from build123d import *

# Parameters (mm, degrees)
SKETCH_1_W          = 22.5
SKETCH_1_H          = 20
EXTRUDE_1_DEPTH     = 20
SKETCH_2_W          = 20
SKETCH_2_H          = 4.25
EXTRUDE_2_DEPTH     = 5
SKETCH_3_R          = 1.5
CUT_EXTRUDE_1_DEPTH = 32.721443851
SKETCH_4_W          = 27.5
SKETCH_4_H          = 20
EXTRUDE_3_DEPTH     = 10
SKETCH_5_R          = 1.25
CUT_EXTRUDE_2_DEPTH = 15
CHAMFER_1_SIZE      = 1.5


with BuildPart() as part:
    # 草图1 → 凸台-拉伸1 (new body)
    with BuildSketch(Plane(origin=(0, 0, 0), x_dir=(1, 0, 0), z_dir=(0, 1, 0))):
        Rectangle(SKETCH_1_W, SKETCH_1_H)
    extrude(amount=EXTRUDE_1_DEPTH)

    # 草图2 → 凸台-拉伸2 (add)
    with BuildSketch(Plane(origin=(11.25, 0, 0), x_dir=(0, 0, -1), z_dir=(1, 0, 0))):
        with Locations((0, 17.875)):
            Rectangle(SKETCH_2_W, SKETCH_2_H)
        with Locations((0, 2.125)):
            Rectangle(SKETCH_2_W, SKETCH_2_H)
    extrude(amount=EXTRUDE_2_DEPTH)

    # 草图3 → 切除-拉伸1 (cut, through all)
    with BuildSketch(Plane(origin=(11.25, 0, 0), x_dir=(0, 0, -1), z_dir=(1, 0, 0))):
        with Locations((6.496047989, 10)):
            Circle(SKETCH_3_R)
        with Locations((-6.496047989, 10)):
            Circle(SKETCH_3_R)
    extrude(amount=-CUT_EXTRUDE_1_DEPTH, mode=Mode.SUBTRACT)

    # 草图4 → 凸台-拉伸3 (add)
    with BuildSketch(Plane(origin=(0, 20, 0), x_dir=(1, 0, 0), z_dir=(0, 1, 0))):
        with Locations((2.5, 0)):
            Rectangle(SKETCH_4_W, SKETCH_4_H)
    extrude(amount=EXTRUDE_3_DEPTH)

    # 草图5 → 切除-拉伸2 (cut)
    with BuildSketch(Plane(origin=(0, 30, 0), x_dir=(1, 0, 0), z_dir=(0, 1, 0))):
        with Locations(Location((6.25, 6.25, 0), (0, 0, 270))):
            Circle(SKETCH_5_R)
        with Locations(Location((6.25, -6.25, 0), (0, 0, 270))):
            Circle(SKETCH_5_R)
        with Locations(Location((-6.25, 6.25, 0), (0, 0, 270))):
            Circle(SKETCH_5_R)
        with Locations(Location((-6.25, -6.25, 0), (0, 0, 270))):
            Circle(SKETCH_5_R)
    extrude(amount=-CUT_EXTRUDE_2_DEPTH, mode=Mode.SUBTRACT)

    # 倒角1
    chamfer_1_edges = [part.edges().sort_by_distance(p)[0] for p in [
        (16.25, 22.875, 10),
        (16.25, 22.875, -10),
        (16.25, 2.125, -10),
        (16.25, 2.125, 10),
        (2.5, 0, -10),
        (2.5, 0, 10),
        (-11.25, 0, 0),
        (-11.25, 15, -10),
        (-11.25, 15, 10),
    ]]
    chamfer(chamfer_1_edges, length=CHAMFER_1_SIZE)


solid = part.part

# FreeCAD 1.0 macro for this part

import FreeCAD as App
import Part
import Sketcher

V = App.Vector
Q = App.Units.Quantity


def edges_at(feature, points):
    """Names of the edges that pass closest to the given points."""
    edges = feature.Shape.Edges
    near = lambda p: min(range(len(edges)), key=lambda i: edges[i].distToShape(Part.Vertex(*p))[0])
    return sorted({f"Edge{near(p) + 1}" for p in points})

doc = App.newDocument("Part")
body = doc.addObject("PartDesign::Body", "Body")

# Sketch on XZ plane
sketch1 = doc.addObject("Sketcher::SketchObject", "Sketch")
body.addObject(sketch1)
sketch1.AttachmentSupport = (doc.XZ_Plane, [""])
sketch1.MapMode = "FlatFace"
sketch1.addGeometry([
    Part.LineSegment(V(-11.25, -10, 0), V(-11.25, 10, 0)),
    Part.LineSegment(V(-11.25, 10, 0), V(11.25, 10, 0)),
    Part.LineSegment(V(11.25, 10, 0), V(11.25, -10, 0)),
    Part.LineSegment(V(11.25, -10, 0), V(-11.25, -10, 0)),
], False)
sketch1.addConstraint([
    Sketcher.Constraint("Coincident", 0, 2, 1, 1),
    Sketcher.Constraint("Coincident", 1, 2, 2, 1),
    Sketcher.Constraint("Coincident", 2, 2, 3, 1),
    Sketcher.Constraint("Coincident", 3, 2, 0, 1),
    Sketcher.Constraint("Vertical", 0),
    Sketcher.Constraint("Horizontal", 1),
    Sketcher.Constraint("Vertical", 2),
    Sketcher.Constraint("Horizontal", 3),
    Sketcher.Constraint("Symmetric", 0, 2, 2, 2, -1, 1),
    Sketcher.Constraint("DistanceY", 0, 1, 0, 2, Q("20 mm")),
    Sketcher.Constraint("DistanceX", 1, 1, 1, 2, Q("22.5 mm")),
])
pad1 = doc.addObject("PartDesign::Pad", "Pad")
body.addObject(pad1)
pad1.Profile = sketch1
pad1.Length = 20
pad1.Reversed = True

# Sketch on YZ plane
sketch2 = doc.addObject("Sketcher::SketchObject", "Sketch001")
body.addObject(sketch2)
sketch2.AttachmentSupport = (doc.YZ_Plane, [""])
sketch2.MapMode = "FlatFace"
sketch2.AttachmentOffset = App.Placement(V(0, 0, 11.25), App.Rotation())
sketch2.addGeometry([
    Part.LineSegment(V(20, 10, 0), V(15.75, 10, 0)),  # 0
    Part.LineSegment(V(15.75, 10, 0), V(15.75, -10, 0)),  # 1
    Part.LineSegment(V(15.75, -10, 0), V(20, -10, 0)),  # 2
    Part.LineSegment(V(20, -10, 0), V(20, 10, 0)),  # 3
    Part.LineSegment(V(4.25, 10, 0), V(0, 10, 0)),  # 4
    Part.LineSegment(V(0, 10, 0), V(0, -10, 0)),  # 5
    Part.LineSegment(V(0, -10, 0), V(4.25, -10, 0)),  # 6
    Part.LineSegment(V(4.25, -10, 0), V(4.25, 10, 0)),  # 7
], False)
sketch2.addConstraint([
    Sketcher.Constraint("Coincident", 0, 2, 1, 1),
    Sketcher.Constraint("Coincident", 1, 2, 2, 1),
    Sketcher.Constraint("Coincident", 2, 2, 3, 1),
    Sketcher.Constraint("Coincident", 3, 2, 0, 1),
    Sketcher.Constraint("Coincident", 4, 2, 5, 1),
    Sketcher.Constraint("Coincident", 5, 2, 6, 1),
    Sketcher.Constraint("Coincident", 6, 2, 7, 1),
    Sketcher.Constraint("Coincident", 7, 2, 4, 1),
    Sketcher.Constraint("Horizontal", 0),
    Sketcher.Constraint("Vertical", 1),
    Sketcher.Constraint("Horizontal", 2),
    Sketcher.Constraint("Vertical", 3),
    Sketcher.Constraint("Horizontal", 4),
    Sketcher.Constraint("Vertical", 5),
    Sketcher.Constraint("Horizontal", 6),
    Sketcher.Constraint("Vertical", 7),
    Sketcher.Constraint("Symmetric", 4, 2, 5, 2, -1, 1),
    Sketcher.Constraint("Horizontal", 3, 2, 4, 2),
    Sketcher.Constraint("Horizontal", 2, 2, 5, 2),
    Sketcher.Constraint("Equal", 2, 4),
    Sketcher.Constraint("DistanceY", 1, 2, 1, 1, Q("20 mm")),
    Sketcher.Constraint("DistanceX", -1, 1, 2, 2, Q("20 mm")),
    Sketcher.Constraint("DistanceX", 0, 2, 0, 1, Q("4.25 mm")),
])
pad2 = doc.addObject("PartDesign::Pad", "Pad001")
body.addObject(pad2)
pad2.Profile = sketch2
pad2.Length = 5

# Sketch on YZ plane
sketch3 = doc.addObject("Sketcher::SketchObject", "Sketch002")
body.addObject(sketch3)
sketch3.AttachmentSupport = (doc.YZ_Plane, [""])
sketch3.MapMode = "FlatFace"
sketch3.AttachmentOffset = App.Placement(V(0, 0, 11.25), App.Rotation())
sketch3.addGeometry([
    Part.Circle(V(10, -6.496048, 0), V(0, 0, 1), 1.5),
    Part.Circle(V(10, 6.496048, 0), V(0, 0, 1), 1.5),
], False)
sketch3.addConstraint([
    Sketcher.Constraint("Equal", 0, 1),
    Sketcher.Constraint("Symmetric", 0, 3, 1, 3, -1),
    Sketcher.Constraint("Diameter", 0, Q("3 mm")),
    Sketcher.Constraint("DistanceX", -1, 1, 0, 3, Q("10 mm")),
    Sketcher.Constraint("DistanceY", 0, 3, -1, 1, Q("6.496048 mm")),
])
pocket1 = doc.addObject("PartDesign::Pocket", "Pocket")
body.addObject(pocket1)
pocket1.Profile = sketch3
pocket1.Type = "ThroughAll"

# Sketch on XZ plane
sketch4 = doc.addObject("Sketcher::SketchObject", "Sketch003")
body.addObject(sketch4)
sketch4.AttachmentSupport = (doc.XZ_Plane, [""])
sketch4.MapMode = "FlatFace"
sketch4.AttachmentOffset = App.Placement(V(0, 0, -20), App.Rotation())
sketch4.addGeometry([
    Part.LineSegment(V(-11.25, -10, 0), V(-11.25, 10, 0)),
    Part.LineSegment(V(-11.25, 10, 0), V(16.25, 10, 0)),
    Part.LineSegment(V(16.25, 10, 0), V(16.25, -10, 0)),
    Part.LineSegment(V(16.25, -10, 0), V(-11.25, -10, 0)),
], False)
sketch4.addConstraint([
    Sketcher.Constraint("Coincident", 0, 2, 1, 1),
    Sketcher.Constraint("Coincident", 1, 2, 2, 1),
    Sketcher.Constraint("Coincident", 2, 2, 3, 1),
    Sketcher.Constraint("Coincident", 3, 2, 0, 1),
    Sketcher.Constraint("Vertical", 0),
    Sketcher.Constraint("Horizontal", 1),
    Sketcher.Constraint("Vertical", 2),
    Sketcher.Constraint("Horizontal", 3),
    Sketcher.Constraint("DistanceY", 0, 1, 0, 2, Q("20 mm")),
    Sketcher.Constraint("DistanceX", 1, 1, 1, 2, Q("27.5 mm")),
    Sketcher.Constraint("DistanceY", -1, 1, 0, 2, Q("10 mm")),
    Sketcher.Constraint("DistanceX", 0, 2, -1, 1, Q("11.25 mm")),
])
pad3 = doc.addObject("PartDesign::Pad", "Pad002")
body.addObject(pad3)
pad3.Profile = sketch4
pad3.Length = 10
pad3.Reversed = True

# Sketch on XZ plane
sketch5 = doc.addObject("Sketcher::SketchObject", "Sketch004")
body.addObject(sketch5)
sketch5.AttachmentSupport = (doc.XZ_Plane, [""])
sketch5.MapMode = "FlatFace"
sketch5.AttachmentOffset = App.Placement(V(0, 0, -30), App.Rotation())
sketch5.addGeometry([
    Part.Circle(V(6.25, -6.25, 0), V(0, 0, 1), 1.25),
    Part.Circle(V(6.25, 6.25, 0), V(0, 0, 1), 1.25),
    Part.Circle(V(-6.25, -6.25, 0), V(0, 0, 1), 1.25),
    Part.Circle(V(-6.25, 6.25, 0), V(0, 0, 1), 1.25),
], False)
sketch5.addConstraint([
    Sketcher.Constraint("Equal", 0, 1),
    Sketcher.Constraint("Equal", 1, 2),
    Sketcher.Constraint("Equal", 2, 3),
    Sketcher.Constraint("Symmetric", 1, 3, 2, 3, -1, 1),
    Sketcher.Constraint("Symmetric", 0, 3, 3, 3, -1, 1),
    Sketcher.Constraint("Symmetric", 0, 3, 2, 3, -2),
    Sketcher.Constraint("Diameter", 0, Q("2.5 mm")),
    Sketcher.Constraint("DistanceY", 0, 3, 1, 3, Q("12.5 mm")),
    Sketcher.Constraint("DistanceX", 2, 3, 0, 3, Q("12.5 mm")),
])
pocket2 = doc.addObject("PartDesign::Pocket", "Pocket001")
body.addObject(pocket2)
pocket2.Profile = sketch5
pocket2.Length = 15
pocket2.Reversed = True
doc.recompute()

chamfer = doc.addObject("PartDesign::Chamfer", "Chamfer")
body.addObject(chamfer)
chamfer.Base = (pocket2, edges_at(pocket2, [
    (16.25, 22.875, 10),
    (16.25, 22.875, -10),
    (16.25, 2.125, -10),
    (16.25, 2.125, 10),
    (2.5, 0, -10),
    (2.5, 0, 10),
    (-11.25, 0, 0),
    (-11.25, 15, -10),
    (-11.25, 15, 10),
]))
chamfer.Size = 1.5

doc.recompute()
